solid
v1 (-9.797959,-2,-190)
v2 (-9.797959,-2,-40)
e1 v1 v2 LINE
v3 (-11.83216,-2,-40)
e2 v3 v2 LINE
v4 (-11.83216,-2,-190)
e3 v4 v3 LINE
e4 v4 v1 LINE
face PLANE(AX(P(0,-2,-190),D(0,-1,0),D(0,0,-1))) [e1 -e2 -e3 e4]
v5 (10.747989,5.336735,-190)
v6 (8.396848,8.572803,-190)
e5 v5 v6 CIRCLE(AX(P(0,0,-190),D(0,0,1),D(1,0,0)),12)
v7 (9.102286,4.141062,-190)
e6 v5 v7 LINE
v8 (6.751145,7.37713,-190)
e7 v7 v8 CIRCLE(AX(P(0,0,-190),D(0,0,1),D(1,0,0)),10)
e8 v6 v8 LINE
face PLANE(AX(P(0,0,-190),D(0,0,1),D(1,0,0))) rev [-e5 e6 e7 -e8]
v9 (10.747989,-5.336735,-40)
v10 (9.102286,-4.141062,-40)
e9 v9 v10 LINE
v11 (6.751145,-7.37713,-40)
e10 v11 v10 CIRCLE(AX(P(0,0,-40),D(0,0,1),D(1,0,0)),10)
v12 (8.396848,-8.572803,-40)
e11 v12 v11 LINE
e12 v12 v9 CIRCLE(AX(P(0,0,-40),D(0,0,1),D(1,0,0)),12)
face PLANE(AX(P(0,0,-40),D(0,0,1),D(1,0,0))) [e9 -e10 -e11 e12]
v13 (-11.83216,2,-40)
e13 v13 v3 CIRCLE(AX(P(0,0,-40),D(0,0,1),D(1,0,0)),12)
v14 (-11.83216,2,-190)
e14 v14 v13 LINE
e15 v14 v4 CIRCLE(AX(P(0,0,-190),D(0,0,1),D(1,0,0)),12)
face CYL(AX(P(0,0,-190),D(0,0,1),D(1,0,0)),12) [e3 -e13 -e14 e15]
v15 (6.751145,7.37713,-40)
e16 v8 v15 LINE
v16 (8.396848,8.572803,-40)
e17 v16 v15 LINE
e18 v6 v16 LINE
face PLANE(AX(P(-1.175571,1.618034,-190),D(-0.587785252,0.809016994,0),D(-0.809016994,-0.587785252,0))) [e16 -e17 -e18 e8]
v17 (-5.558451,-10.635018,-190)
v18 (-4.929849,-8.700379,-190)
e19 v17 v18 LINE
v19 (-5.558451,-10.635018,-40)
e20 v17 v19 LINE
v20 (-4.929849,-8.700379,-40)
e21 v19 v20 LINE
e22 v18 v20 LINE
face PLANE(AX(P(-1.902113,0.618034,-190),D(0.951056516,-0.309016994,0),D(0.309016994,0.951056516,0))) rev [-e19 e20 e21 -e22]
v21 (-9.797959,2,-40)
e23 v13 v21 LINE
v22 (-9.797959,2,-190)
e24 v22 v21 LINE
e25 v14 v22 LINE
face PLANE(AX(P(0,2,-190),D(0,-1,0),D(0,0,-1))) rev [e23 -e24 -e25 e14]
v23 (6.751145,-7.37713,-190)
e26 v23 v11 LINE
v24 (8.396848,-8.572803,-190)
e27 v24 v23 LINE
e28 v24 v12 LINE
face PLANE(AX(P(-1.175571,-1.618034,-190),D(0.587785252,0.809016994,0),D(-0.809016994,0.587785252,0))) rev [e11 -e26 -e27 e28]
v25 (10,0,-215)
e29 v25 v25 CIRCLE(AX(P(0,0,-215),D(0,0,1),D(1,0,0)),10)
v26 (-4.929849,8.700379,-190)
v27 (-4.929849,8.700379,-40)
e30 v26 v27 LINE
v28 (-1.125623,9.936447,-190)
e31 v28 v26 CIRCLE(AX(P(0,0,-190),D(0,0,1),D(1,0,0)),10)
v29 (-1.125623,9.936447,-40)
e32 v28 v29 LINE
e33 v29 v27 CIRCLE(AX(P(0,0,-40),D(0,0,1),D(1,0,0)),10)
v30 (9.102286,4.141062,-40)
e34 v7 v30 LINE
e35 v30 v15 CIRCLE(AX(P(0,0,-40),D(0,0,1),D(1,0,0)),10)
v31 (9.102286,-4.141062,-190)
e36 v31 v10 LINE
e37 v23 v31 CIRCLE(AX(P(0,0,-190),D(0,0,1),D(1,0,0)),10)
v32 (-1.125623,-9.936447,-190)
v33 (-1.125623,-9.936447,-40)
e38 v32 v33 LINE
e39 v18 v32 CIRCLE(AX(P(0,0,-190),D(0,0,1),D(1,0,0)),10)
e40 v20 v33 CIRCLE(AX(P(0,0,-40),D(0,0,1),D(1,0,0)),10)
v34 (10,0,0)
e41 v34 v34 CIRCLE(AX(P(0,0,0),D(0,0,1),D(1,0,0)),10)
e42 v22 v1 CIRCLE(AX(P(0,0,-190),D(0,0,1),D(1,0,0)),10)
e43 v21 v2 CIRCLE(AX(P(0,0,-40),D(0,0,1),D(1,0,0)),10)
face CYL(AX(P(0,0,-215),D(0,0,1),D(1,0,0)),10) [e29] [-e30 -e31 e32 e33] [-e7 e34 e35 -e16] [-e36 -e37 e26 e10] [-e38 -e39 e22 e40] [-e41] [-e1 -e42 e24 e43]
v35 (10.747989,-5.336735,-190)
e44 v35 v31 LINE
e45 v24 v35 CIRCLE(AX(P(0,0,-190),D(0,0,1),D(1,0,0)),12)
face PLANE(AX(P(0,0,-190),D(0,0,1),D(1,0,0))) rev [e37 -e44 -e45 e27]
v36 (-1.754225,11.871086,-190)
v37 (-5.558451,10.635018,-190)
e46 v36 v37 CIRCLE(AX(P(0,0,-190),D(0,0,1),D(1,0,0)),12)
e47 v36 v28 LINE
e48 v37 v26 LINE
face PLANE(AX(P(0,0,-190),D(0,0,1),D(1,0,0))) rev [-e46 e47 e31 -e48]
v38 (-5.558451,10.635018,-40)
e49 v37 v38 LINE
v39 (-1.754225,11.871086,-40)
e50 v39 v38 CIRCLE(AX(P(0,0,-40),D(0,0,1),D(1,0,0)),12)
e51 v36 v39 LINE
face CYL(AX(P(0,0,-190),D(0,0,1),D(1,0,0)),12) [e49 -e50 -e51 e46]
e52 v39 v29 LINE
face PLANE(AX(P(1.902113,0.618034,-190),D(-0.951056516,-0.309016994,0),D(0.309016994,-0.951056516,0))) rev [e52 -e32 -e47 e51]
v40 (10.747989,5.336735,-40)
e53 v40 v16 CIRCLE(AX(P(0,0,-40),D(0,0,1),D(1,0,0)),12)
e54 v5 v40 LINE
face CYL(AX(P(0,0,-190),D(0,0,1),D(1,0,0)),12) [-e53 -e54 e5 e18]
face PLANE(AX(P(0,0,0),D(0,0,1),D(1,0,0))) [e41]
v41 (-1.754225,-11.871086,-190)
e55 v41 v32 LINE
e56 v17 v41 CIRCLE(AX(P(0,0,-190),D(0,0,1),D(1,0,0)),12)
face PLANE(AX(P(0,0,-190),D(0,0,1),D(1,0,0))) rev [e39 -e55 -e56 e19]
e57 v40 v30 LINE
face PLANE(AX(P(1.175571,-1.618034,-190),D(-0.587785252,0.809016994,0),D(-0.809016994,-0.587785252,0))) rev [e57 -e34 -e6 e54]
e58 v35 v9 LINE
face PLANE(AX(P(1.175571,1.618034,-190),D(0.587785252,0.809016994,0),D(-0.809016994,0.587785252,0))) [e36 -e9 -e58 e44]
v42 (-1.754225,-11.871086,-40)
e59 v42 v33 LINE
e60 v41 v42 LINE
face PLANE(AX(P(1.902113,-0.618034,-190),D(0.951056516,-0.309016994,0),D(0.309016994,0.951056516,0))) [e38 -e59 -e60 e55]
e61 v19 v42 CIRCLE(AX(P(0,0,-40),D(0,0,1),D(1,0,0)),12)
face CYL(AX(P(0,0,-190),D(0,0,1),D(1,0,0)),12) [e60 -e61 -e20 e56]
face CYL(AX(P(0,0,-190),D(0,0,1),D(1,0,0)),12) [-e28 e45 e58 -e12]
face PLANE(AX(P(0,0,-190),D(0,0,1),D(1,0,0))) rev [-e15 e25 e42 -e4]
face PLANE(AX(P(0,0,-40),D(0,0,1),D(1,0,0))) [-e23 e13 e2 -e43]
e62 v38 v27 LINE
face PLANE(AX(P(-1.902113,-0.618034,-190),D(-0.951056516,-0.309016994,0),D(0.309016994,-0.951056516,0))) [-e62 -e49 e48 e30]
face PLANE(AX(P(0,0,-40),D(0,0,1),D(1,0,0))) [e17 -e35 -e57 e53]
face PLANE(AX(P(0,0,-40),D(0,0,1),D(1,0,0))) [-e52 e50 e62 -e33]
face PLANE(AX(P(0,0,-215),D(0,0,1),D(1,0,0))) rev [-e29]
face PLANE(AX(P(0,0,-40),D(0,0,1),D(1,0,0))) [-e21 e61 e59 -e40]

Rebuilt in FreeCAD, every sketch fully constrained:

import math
import FreeCAD as App
import Part
import Sketcher
from FreeCAD import Vector
Q = App.Units.Quantity

doc = App.newDocument("Part")
params = doc.addObject("Spreadsheet::Sheet", "Params")
for row, (alias, value) in enumerate([
    ("sketch1_diameter", "20 mm"),
    ("pad1_length", "215 mm"),
    ("sketch2_radius", "10 mm"),
    ("sketch2_radius2", "12 mm"),
    ("pad2_length", "150 mm"),
], start=1):
    params.set(f"A{row}", alias)
    params.set(f"B{row}", "=" + value)
    params.setAlias(f"B{row}", alias)

body = doc.addObject("PartDesign::Body", "Body")

# Sketch on XY plane
sketch1 = body.newObject("Sketcher::SketchObject", "Sketch")
sketch1.AttachmentSupport = (doc.getObject("XY_Plane"), [""])
sketch1.MapMode = "FlatFace"
sketch1.addGeometry(Part.Circle(Vector(0, 0, 0), Vector(0, 0, 1), 10), False)
sketch1.addConstraint([
    Sketcher.Constraint("Coincident", 0, 3, -1, 1),
    Sketcher.Constraint("Diameter", 0, 20.0),
])
sketch1.setExpression("Constraints[1]", "Params.sketch1_diameter")
pad1 = body.newObject("PartDesign::Pad", "Pad")
pad1.Profile = sketch1
pad1.setExpression("Length", "Params.pad1_length")
pad1.Reversed = True

# Sketch on XY plane
sketch2 = body.newObject("Sketcher::SketchObject", "Sketch001")
sketch2.AttachmentSupport = (doc.getObject("XY_Plane"), [""])
sketch2.MapMode = "FlatFace"
sketch2.AttachmentOffset = App.Placement(Vector(0, 0, -40), App.Rotation())
sketch2.addGeometry([
    Part.ArcOfCircle(Part.Circle(Vector(0, 0, 0), Vector(0, 0, 1), 10), math.radians(168), math.radians(192)),  # 0
    Part.LineSegment(Vector(-9.8, 2, 0), Vector(-11.8, 2, 0)),  # 1
    Part.ArcOfCircle(Part.Circle(Vector(0, 0, 0), Vector(0, 0, 1), 12), math.radians(170.41), math.radians(189.59)),  # 2
    Part.LineSegment(Vector(-11.8, -2, 0), Vector(-9.8, -2, 0)),  # 3
    Part.LineSegment(Vector(-1.1, 9.9, 0), Vector(-1.8, 11.9, 0)),  # 4
    Part.ArcOfCircle(Part.Circle(Vector(0, 0, 0), Vector(0, 0, 1), 12), math.radians(98.41), math.radians(117.59)),  # 5
    Part.LineSegment(Vector(-5.6, 10.6, 0), Vector(-4.9, 8.7, 0)),  # 6
    Part.ArcOfCircle(Part.Circle(Vector(0, 0, 0), Vector(0, 0, 1), 10), math.radians(96), math.radians(120)),  # 7
    Part.LineSegment(Vector(8.4, 8.6, 0), Vector(6.8, 7.4, 0)),  # 8
    Part.ArcOfCircle(Part.Circle(Vector(0, 0, 0), Vector(0, 0, 1), 10), math.radians(24), math.radians(48)),  # 9
    Part.LineSegment(Vector(9.1, 4.1, 0), Vector(10.7, 5.3, 0)),  # 10
    Part.ArcOfCircle(Part.Circle(Vector(0, 0, 0), Vector(0, 0, 1), 12), math.radians(26.41), math.radians(45.59)),  # 11
    Part.LineSegment(Vector(10.7, -5.3, 0), Vector(9.1, -4.1, 0)),  # 12
    Part.ArcOfCircle(Part.Circle(Vector(0, 0, 0), Vector(0, 0, 1), 10), math.radians(-48), math.radians(-24)),  # 13
    Part.LineSegment(Vector(6.8, -7.4, 0), Vector(8.4, -8.6, 0)),  # 14
    Part.ArcOfCircle(Part.Circle(Vector(0, 0, 0), Vector(0, 0, 1), 12), math.radians(-45.59), math.radians(-26.41)),  # 15
    Part.ArcOfCircle(Part.Circle(Vector(0, 0, 0), Vector(0, 0, 1), 10), math.radians(-120), math.radians(-96)),  # 16
    Part.LineSegment(Vector(-4.9, -8.7, 0), Vector(-5.6, -10.6, 0)),  # 17
    Part.ArcOfCircle(Part.Circle(Vector(0, 0, 0), Vector(0, 0, 1), 12), math.radians(-117.59), math.radians(-98.41)),  # 18
    Part.LineSegment(Vector(-1.8, -11.9, 0), Vector(-1.1, -9.9, 0)),  # 19
], False)
sketch2.addConstraint([
    Sketcher.Constraint("Coincident", 0, 1, 1, 1),
    Sketcher.Constraint("Coincident", 1, 2, 2, 1),
    Sketcher.Constraint("Coincident", 2, 2, 3, 1),
    Sketcher.Constraint("Coincident", 3, 2, 0, 2),
    Sketcher.Constraint("Coincident", 4, 2, 5, 1),
    Sketcher.Constraint("Coincident", 5, 2, 6, 1),
    Sketcher.Constraint("Coincident", 6, 2, 7, 2),
    Sketcher.Constraint("Coincident", 7, 1, 4, 1),
    Sketcher.Constraint("Coincident", 8, 2, 9, 2),
    Sketcher.Constraint("Coincident", 9, 1, 10, 1),
    Sketcher.Constraint("Coincident", 10, 2, 11, 1),
    Sketcher.Constraint("Coincident", 11, 2, 8, 1),
    Sketcher.Constraint("Coincident", 12, 2, 13, 2),
    Sketcher.Constraint("Coincident", 13, 1, 14, 1),
    Sketcher.Constraint("Coincident", 14, 2, 15, 1),
    Sketcher.Constraint("Coincident", 15, 2, 12, 1),
    Sketcher.Constraint("Coincident", 16, 1, 17, 1),
    Sketcher.Constraint("Coincident", 17, 2, 18, 1),
    Sketcher.Constraint("Coincident", 18, 2, 19, 1),
    Sketcher.Constraint("Coincident", 19, 2, 16, 2),
    Sketcher.Constraint("Horizontal", 1),
    Sketcher.Constraint("Horizontal", 3),
    Sketcher.Constraint("Coincident", 0, 3, -1, 1),
    Sketcher.Constraint("Coincident", 2, 3, -1, 1),
    Sketcher.Constraint("Coincident", 5, 3, -1, 1),
    Sketcher.Constraint("Coincident", 7, 3, -1, 1),
    Sketcher.Constraint("Coincident", 9, 3, -1, 1),
    Sketcher.Constraint("Coincident", 11, 3, -1, 1),
    Sketcher.Constraint("Coincident", 13, 3, -1, 1),
    Sketcher.Constraint("Coincident", 15, 3, -1, 1),
    Sketcher.Constraint("Coincident", 16, 3, -1, 1),
    Sketcher.Constraint("Coincident", 18, 3, -1, 1),
    Sketcher.Constraint("Equal", 2, 5),
    Sketcher.Constraint("Equal", 0, 7),
    Sketcher.Constraint("Equal", 7, 9),
    Sketcher.Constraint("Equal", 5, 11),
    Sketcher.Constraint("Equal", 9, 13),
    Sketcher.Constraint("Equal", 11, 15),
    Sketcher.Constraint("Equal", 13, 16),
    Sketcher.Constraint("Equal", 15, 18),
    Sketcher.Constraint("Parallel", 4, 6),
    Sketcher.Constraint("Parallel", 8, 10),
    Sketcher.Constraint("Parallel", 12, 14),
    Sketcher.Constraint("Parallel", 17, 19),
    Sketcher.Constraint("Vertical", 1, 2, 2, 2),
    Sketcher.Constraint("Vertical", 9, 1, 12, 2),
    Sketcher.Constraint("Vertical", 8, 2, 13, 1),
    Sketcher.Constraint("Vertical", 11, 2, 14, 2),
    Sketcher.Constraint("Vertical", 6, 2, 16, 1),
    Sketcher.Constraint("Vertical", 5, 2, 17, 2),
    Sketcher.Constraint("Vertical", 4, 2, 18, 2),
    Sketcher.Constraint("Equal", 4, 6),
    Sketcher.Constraint("Equal", 6, 8),
    Sketcher.Constraint("Equal", 8, 10),
    Sketcher.Constraint("Radius", 0, 10.0),
    Sketcher.Constraint("Radius", 2, 12.0),
    Sketcher.Constraint("Angle", 4, Q("108 deg")),
    Sketcher.Constraint("Angle", 8, Q("-144 deg")),
    Sketcher.Constraint("DistanceY", -1, 1, 0, 1, 2.0),
    Sketcher.Constraint("Distance", 4, 2.034201),
])
sketch2.setExpression("Constraints[54]", "Params.sketch2_radius")
sketch2.setExpression("Constraints[55]", "Params.sketch2_radius2")
pad2 = body.newObject("PartDesign::Pad", "Pad001")
pad2.Profile = sketch2
pad2.setExpression("Length", "Params.pad2_length")
pad2.Reversed = True

doc.recompute()
